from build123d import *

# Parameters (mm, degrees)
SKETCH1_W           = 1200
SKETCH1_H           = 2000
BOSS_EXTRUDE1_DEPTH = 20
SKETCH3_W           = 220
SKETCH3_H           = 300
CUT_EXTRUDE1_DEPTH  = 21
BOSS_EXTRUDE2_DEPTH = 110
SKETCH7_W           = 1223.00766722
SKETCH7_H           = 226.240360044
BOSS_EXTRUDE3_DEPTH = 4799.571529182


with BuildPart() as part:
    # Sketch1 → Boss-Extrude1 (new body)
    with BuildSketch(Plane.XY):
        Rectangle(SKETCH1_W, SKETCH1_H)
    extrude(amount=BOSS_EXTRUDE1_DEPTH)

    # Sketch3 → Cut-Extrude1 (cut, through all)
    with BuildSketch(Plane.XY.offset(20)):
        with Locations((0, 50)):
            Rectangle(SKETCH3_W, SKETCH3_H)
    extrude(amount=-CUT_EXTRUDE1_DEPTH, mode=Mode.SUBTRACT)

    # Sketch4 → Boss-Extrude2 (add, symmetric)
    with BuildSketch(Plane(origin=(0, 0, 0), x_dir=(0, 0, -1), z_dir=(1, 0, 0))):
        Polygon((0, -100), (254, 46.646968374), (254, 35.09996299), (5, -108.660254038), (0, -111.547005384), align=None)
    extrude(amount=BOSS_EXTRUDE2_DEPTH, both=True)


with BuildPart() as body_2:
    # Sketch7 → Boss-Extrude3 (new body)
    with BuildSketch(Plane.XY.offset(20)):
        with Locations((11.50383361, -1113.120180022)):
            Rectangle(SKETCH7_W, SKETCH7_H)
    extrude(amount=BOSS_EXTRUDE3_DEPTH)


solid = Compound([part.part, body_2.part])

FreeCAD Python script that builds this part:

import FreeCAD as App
import Part
import Sketcher
Q = App.Units.Quantity

doc = App.newDocument("Part")
params = doc.addObject("Spreadsheet::Sheet", "Params")
for row, (alias, value) in enumerate([
    ("sketch1_width", "1200 mm"),
    ("sketch1_height", "2000 mm"),
    ("pad1_length", "20 mm"),
    ("sketch2_width", "220 mm"),
    ("sketch2_height", "300 mm"),
    ("pad2_length", "220 mm"),
    ("pad3_length", "4799.571529 mm"),
], start=1):
    params.set(f"A{row}", alias)
    params.set(f"B{row}", "=" + value)
    params.setAlias(f"B{row}", alias)

body = doc.addObject("PartDesign::Body", "Body")

# Sketch on XY plane
sketch1 = body.newObject("Sketcher::SketchObject", "Sketch")
sketch1.AttachmentSupport = (doc.getObject("XY_Plane"), [""])
sketch1.MapMode = "FlatFace"
sketch1.addGeometry(Part.LineSegment(App.Vector(-600, 1000, 0), App.Vector(-600, -1000, 0)), False)
sketch1.addGeometry(Part.LineSegment(App.Vector(-600, -1000, 0), App.Vector(600, -1000, 0)), False)
sketch1.addGeometry(Part.LineSegment(App.Vector(600, -1000, 0), App.Vector(600, 1000, 0)), False)
sketch1.addGeometry(Part.LineSegment(App.Vector(600, 1000, 0), App.Vector(-600, 1000, 0)), False)
sketch1.addConstraint(Sketcher.Constraint("Coincident", 0, 2, 1, 1))
sketch1.addConstraint(Sketcher.Constraint("Coincident", 1, 2, 2, 1))
sketch1.addConstraint(Sketcher.Constraint("Coincident", 2, 2, 3, 1))
sketch1.addConstraint(Sketcher.Constraint("Coincident", 3, 2, 0, 1))
sketch1.addConstraint(Sketcher.Constraint("Vertical", 0))
sketch1.addConstraint(Sketcher.Constraint("Horizontal", 1))
sketch1.addConstraint(Sketcher.Constraint("Vertical", 2))
sketch1.addConstraint(Sketcher.Constraint("Horizontal", 3))
sketch1.addConstraint(Sketcher.Constraint("Symmetric", 0, 2, 2, 2, -1, 1))
sketch1.addConstraint(Sketcher.Constraint("DistanceX", 1, 1, 1, 2, Q("1200 mm")))
sketch1.addConstraint(Sketcher.Constraint("DistanceY", 0, 2, 0, 1, Q("2000 mm")))
sketch1.setExpression("Constraints[9]", "Params.sketch1_width")
sketch1.setExpression("Constraints[10]", "Params.sketch1_height")
pad1 = body.newObject("PartDesign::Pad", "Pad")
pad1.Profile = sketch1
pad1.setExpression("Length", "Params.pad1_length")

# Sketch on XY plane
sketch2 = body.newObject("Sketcher::SketchObject", "Sketch001")
sketch2.AttachmentSupport = (doc.getObject("XY_Plane"), [""])
sketch2.MapMode = "FlatFace"
sketch2.AttachmentOffset = App.Placement(App.Vector(0, 0, 20), App.Rotation())
sketch2.addGeometry(Part.LineSegment(App.Vector(-110, 200, 0), App.Vector(-110, -100, 0)), False)
sketch2.addGeometry(Part.LineSegment(App.Vector(-110, -100, 0), App.Vector(110, -100, 0)), False)
sketch2.addGeometry(Part.LineSegment(App.Vector(110, -100, 0), App.Vector(110, 200, 0)), False)
sketch2.addGeometry(Part.LineSegment(App.Vector(110, 200, 0), App.Vector(-110, 200, 0)), False)
sketch2.addConstraint(Sketcher.Constraint("Coincident", 0, 2, 1, 1))
sketch2.addConstraint(Sketcher.Constraint("Coincident", 1, 2, 2, 1))
sketch2.addConstraint(Sketcher.Constraint("Coincident", 2, 2, 3, 1))
sketch2.addConstraint(Sketcher.Constraint("Coincident", 3, 2, 0, 1))
sketch2.addConstraint(Sketcher.Constraint("Vertical", 0))
sketch2.addConstraint(Sketcher.Constraint("Horizontal", 1))
sketch2.addConstraint(Sketcher.Constraint("Vertical", 2))
sketch2.addConstraint(Sketcher.Constraint("Horizontal", 3))
sketch2.addConstraint(Sketcher.Constraint("DistanceX", 1, 1, 1, 2, Q("220 mm")))
sketch2.addConstraint(Sketcher.Constraint("DistanceY", 0, 2, 0, 1, Q("300 mm")))
sketch2.addConstraint(Sketcher.Constraint("DistanceX", 0, 2, -1, 1, Q("110 mm")))
sketch2.addConstraint(Sketcher.Constraint("DistanceY", 0, 2, -1, 1, Q("100 mm")))
sketch2.setExpression("Constraints[8]", "Params.sketch2_width")
sketch2.setExpression("Constraints[9]", "Params.sketch2_height")
pocket1 = body.newObject("PartDesign::Pocket", "Pocket")
pocket1.Profile = sketch2
pocket1.Type = "ThroughAll"

# Sketch on YZ plane
sketch3 = body.newObject("Sketcher::SketchObject", "Sketch002")
sketch3.AttachmentSupport = (doc.getObject("YZ_Plane"), [""])
sketch3.MapMode = "FlatFace"
sketch3.addGeometry(Part.LineSegment(App.Vector(47, -254, 0), App.Vector(-100, 0, 0)), False)
sketch3.addGeometry(Part.LineSegment(App.Vector(-100, 0, 0), App.Vector(-112, 0, 0)), False)
sketch3.addGeometry(Part.LineSegment(App.Vector(-112, 0, 0), App.Vector(-109, -5, 0)), False)
sketch3.addGeometry(Part.LineSegment(App.Vector(-109, -5, 0), App.Vector(35, -254, 0)), False)
sketch3.addGeometry(Part.LineSegment(App.Vector(35, -254, 0), App.Vector(47, -254, 0)), False)
sketch3.addConstraint(Sketcher.Constraint("Coincident", 0, 2, 1, 1))
sketch3.addConstraint(Sketcher.Constraint("Coincident", 1, 2, 2, 1))
sketch3.addConstraint(Sketcher.Constraint("Coincident", 2, 2, 3, 1))
sketch3.addConstraint(Sketcher.Constraint("Coincident", 3, 2, 4, 1))
sketch3.addConstraint(Sketcher.Constraint("Coincident", 4, 2, 0, 1))
sketch3.addConstraint(Sketcher.Constraint("Horizontal", 1))
sketch3.addConstraint(Sketcher.Constraint("Horizontal", 4))
sketch3.addConstraint(Sketcher.Constraint("PointOnObject", 0, 2, -1))
sketch3.addConstraint(Sketcher.Constraint("Parallel", 0, 2))
sketch3.addConstraint(Sketcher.Constraint("Parallel", 2, 3))
sketch3.addConstraint(Sketcher.Constraint("Angle", 0, Q("120 deg")))
sketch3.addConstraint(Sketcher.Constraint("DistanceX", 0, 2, -1, 1, Q("100 mm")))
sketch3.addConstraint(Sketcher.Constraint("DistanceY", 2, 2, -1, 1, Q("5 mm")))
sketch3.addConstraint(Sketcher.Constraint("DistanceY", 3, 2, -1, 1, Q("254 mm")))
sketch3.addConstraint(Sketcher.Constraint("DistanceX", 1, 2, 1, 1, Q("11.547005 mm")))
pad2 = body.newObject("PartDesign::Pad", "Pad001")
pad2.Profile = sketch3
pad2.setExpression("Length", "Params.pad2_length")
pad2.Midplane = True
body2 = doc.addObject("PartDesign::Body", "Body001")

# Sketch on XY plane
sketch4 = body2.newObject("Sketcher::SketchObject", "Sketch003")
sketch4.AttachmentSupport = (doc.getObject("XY_Plane001"), [""])
sketch4.MapMode = "FlatFace"
sketch4.AttachmentOffset = App.Placement(App.Vector(0, 0, 20), App.Rotation())
sketch4.addGeometry(Part.LineSegment(App.Vector(-600, -1000, 0), App.Vector(-600, -1226, 0)), False)
sketch4.addGeometry(Part.LineSegment(App.Vector(-600, -1226, 0), App.Vector(623, -1226, 0)), False)
sketch4.addGeometry(Part.LineSegment(App.Vector(623, -1226, 0), App.Vector(623, -1000, 0)), False)
sketch4.addGeometry(Part.LineSegment(App.Vector(623, -1000, 0), App.Vector(-600, -1000, 0)), False)
sketch4.addConstraint(Sketcher.Constraint("Coincident", 0, 2, 1, 1))
sketch4.addConstraint(Sketcher.Constraint("Coincident", 1, 2, 2, 1))
sketch4.addConstraint(Sketcher.Constraint("Coincident", 2, 2, 3, 1))
sketch4.addConstraint(Sketcher.Constraint("Coincident", 3, 2, 0, 1))
sketch4.addConstraint(Sketcher.Constraint("Vertical", 0))
sketch4.addConstraint(Sketcher.Constraint("Horizontal", 1))
sketch4.addConstraint(Sketcher.Constraint("Vertical", 2))
sketch4.addConstraint(Sketcher.Constraint("Horizontal", 3))
sketch4.addConstraint(Sketcher.Constraint("DistanceX", 0, 2, -1, 1, Q("600 mm")))
sketch4.addConstraint(Sketcher.Constraint("DistanceY", 2, 2, -1, 1, Q("1000 mm")))
sketch4.addConstraint(Sketcher.Constraint("DistanceY", 0, 2, 0, 1, Q("226.24036 mm")))
sketch4.addConstraint(Sketcher.Constraint("DistanceX", 1, 1, 1, 2, Q("1223.007667 mm")))
pad3 = body2.newObject("PartDesign::Pad", "Pad002")
pad3.Profile = sketch4
pad3.setExpression("Length", "Params.pad3_length")

doc.recompute()
